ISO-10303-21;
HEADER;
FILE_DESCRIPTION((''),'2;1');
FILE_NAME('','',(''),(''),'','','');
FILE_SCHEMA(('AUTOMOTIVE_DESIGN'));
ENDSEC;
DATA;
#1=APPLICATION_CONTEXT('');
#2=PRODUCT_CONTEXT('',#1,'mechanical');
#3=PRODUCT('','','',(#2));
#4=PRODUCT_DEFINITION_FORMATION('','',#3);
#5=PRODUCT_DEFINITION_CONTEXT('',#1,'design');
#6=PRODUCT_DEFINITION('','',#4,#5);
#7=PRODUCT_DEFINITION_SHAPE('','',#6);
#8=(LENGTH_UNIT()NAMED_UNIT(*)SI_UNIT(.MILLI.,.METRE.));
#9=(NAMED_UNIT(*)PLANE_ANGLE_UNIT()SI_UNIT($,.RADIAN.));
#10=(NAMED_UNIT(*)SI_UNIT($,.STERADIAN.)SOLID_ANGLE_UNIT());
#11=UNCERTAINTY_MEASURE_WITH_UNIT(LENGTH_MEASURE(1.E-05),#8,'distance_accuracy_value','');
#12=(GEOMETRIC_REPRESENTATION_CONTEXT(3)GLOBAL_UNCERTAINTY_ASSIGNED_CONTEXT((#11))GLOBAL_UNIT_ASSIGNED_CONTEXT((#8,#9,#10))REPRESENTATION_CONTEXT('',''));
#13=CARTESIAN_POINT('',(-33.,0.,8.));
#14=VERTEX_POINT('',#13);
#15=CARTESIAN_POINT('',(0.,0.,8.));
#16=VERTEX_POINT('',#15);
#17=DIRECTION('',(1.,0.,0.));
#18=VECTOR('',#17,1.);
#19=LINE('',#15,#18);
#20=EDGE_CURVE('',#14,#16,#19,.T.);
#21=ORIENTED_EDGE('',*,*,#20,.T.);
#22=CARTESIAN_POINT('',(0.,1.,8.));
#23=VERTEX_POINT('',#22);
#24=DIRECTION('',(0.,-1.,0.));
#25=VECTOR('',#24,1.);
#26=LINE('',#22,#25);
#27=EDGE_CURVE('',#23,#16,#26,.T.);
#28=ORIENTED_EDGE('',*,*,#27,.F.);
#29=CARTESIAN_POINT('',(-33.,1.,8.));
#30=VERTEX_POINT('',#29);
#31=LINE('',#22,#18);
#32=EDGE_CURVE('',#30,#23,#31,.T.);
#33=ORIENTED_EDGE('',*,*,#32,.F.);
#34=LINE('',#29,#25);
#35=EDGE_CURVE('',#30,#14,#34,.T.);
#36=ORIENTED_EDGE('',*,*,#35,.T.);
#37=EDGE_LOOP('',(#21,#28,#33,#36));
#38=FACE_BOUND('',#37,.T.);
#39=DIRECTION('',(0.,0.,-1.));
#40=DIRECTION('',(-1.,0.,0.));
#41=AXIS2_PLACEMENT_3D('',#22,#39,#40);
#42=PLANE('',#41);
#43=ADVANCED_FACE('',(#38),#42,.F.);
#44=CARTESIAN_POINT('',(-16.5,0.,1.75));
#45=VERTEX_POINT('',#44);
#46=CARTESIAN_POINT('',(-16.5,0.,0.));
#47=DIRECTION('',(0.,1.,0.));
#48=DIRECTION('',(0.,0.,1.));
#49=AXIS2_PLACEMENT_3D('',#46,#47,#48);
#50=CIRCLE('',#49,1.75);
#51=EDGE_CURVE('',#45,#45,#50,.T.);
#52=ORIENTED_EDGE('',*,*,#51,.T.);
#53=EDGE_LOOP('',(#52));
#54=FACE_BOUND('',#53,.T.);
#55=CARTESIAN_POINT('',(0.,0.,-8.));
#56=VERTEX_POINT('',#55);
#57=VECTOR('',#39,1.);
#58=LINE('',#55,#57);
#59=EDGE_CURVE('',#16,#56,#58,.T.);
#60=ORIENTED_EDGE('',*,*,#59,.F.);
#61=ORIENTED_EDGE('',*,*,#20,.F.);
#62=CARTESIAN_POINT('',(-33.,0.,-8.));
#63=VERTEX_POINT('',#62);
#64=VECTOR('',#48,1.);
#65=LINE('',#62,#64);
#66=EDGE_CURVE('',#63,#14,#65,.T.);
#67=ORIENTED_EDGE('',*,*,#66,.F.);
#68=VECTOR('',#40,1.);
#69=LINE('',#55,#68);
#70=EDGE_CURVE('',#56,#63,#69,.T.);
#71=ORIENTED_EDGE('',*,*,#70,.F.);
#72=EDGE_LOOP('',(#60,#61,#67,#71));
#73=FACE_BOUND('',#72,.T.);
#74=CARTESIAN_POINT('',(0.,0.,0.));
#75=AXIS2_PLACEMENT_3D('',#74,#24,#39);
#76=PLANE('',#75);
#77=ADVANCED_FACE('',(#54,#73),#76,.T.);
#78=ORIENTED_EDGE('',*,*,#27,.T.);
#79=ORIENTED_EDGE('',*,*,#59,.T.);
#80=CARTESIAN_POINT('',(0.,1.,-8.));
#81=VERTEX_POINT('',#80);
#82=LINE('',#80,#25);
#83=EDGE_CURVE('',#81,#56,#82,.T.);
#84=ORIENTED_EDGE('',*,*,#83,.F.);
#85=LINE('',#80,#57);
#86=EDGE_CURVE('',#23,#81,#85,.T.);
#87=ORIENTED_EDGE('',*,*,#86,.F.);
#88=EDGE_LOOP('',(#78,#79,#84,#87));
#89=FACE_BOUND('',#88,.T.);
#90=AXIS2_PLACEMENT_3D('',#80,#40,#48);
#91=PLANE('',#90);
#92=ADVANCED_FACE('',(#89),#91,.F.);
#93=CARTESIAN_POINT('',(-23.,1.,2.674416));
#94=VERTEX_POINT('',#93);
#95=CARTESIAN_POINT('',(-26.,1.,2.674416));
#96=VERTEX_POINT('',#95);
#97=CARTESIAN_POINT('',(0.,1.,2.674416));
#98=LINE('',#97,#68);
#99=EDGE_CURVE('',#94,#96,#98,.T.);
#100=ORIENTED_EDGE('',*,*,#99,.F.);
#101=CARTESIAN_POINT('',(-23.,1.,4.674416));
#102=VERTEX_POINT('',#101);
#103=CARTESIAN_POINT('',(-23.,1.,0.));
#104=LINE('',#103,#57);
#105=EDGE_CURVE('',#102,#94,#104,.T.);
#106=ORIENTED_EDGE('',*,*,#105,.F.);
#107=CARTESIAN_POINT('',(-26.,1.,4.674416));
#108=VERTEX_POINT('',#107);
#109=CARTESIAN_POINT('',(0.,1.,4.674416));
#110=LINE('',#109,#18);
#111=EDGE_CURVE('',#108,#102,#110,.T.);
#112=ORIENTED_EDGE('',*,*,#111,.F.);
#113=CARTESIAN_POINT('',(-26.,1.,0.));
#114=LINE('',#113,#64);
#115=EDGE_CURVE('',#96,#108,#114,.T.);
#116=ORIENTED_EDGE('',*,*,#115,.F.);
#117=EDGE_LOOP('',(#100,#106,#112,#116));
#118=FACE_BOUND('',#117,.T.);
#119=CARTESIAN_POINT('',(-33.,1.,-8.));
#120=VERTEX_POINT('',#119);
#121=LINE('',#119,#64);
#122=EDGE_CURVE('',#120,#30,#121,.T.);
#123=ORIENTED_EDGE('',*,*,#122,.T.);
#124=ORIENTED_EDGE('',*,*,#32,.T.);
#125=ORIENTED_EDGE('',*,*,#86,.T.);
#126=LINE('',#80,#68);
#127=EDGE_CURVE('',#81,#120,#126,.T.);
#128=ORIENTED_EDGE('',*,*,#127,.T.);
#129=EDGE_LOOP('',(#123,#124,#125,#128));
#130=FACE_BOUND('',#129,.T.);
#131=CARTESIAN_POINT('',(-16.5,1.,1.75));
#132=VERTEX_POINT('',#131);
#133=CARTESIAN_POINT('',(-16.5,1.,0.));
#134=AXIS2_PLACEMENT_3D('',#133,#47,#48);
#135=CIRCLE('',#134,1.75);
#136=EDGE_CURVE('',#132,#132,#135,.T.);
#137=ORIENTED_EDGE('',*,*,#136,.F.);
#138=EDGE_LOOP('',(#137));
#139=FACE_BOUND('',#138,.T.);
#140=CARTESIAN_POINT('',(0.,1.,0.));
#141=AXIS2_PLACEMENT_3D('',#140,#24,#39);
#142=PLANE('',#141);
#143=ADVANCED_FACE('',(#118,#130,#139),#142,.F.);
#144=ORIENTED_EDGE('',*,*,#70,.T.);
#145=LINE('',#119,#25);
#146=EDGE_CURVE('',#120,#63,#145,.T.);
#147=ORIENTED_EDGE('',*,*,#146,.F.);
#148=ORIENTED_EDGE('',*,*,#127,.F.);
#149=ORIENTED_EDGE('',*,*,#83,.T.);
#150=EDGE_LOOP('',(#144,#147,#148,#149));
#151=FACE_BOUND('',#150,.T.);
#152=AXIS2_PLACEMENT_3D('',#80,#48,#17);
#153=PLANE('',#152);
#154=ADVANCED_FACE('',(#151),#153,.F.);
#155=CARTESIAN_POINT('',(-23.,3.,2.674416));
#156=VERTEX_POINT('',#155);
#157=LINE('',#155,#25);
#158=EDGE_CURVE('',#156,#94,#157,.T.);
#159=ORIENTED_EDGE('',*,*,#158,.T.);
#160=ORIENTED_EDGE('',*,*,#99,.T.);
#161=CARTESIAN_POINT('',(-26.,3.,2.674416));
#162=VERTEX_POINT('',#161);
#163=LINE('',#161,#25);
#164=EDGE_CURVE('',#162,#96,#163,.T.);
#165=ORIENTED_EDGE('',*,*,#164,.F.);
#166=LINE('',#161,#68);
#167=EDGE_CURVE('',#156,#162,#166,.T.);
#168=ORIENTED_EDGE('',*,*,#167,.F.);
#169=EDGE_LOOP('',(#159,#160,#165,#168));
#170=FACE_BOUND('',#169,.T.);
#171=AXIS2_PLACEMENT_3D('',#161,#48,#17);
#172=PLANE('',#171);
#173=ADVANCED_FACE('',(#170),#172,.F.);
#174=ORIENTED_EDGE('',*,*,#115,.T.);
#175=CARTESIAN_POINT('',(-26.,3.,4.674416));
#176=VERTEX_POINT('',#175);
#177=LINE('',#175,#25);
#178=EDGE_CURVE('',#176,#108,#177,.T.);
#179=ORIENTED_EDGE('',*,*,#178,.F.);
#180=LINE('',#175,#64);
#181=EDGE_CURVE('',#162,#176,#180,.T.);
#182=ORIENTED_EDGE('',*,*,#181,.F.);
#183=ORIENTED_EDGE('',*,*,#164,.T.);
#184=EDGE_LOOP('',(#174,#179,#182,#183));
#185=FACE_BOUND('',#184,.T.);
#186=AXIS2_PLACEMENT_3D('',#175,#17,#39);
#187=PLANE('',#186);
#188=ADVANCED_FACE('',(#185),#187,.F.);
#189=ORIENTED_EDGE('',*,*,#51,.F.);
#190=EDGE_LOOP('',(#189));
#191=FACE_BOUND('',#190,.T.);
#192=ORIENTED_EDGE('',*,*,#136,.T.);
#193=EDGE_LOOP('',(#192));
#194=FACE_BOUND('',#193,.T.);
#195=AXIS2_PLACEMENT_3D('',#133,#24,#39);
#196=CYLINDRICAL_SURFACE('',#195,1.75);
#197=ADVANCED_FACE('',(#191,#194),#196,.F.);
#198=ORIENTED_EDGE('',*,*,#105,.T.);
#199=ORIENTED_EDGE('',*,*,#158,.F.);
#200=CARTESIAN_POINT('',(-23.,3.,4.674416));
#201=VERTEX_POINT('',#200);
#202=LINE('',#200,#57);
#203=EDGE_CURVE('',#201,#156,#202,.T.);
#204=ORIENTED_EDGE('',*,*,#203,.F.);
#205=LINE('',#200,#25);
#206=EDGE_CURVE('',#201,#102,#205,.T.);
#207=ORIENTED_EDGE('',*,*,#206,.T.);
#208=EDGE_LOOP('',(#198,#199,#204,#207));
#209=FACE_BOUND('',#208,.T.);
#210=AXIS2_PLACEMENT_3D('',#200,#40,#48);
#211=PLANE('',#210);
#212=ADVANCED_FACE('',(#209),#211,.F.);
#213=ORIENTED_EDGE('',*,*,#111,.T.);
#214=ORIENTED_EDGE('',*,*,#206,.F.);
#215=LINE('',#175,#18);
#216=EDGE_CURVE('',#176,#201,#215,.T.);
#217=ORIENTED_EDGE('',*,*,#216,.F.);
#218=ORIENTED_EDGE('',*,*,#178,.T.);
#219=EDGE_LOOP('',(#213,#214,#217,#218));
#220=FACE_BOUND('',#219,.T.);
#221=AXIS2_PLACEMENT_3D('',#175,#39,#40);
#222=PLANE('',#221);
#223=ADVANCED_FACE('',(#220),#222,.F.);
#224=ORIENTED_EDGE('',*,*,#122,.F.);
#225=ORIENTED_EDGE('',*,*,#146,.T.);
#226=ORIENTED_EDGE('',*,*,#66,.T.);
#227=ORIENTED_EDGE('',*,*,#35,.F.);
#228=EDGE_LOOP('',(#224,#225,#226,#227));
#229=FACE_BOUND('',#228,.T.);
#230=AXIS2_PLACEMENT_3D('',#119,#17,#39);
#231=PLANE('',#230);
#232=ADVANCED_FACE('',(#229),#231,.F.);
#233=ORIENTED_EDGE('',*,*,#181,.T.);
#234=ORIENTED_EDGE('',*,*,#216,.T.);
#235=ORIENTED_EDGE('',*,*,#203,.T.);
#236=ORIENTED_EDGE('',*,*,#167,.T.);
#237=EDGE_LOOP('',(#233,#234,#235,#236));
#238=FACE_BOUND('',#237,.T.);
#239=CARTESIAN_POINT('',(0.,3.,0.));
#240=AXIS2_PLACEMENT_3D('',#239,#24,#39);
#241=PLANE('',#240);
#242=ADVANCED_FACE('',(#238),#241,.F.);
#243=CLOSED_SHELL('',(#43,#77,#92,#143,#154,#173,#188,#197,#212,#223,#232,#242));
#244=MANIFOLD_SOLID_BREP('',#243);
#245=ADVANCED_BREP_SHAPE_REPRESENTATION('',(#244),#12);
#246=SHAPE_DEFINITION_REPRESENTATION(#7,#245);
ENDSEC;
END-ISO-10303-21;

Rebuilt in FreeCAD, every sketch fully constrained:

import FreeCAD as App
import Part
import Sketcher

V = App.Vector
Q = App.Units.Quantity


def add_polygon(sketch, points):
    """Adds a closed chain of lines whose ends are joined by coincident constraints."""
    first, n = sketch.GeometryCount, len(points)
    for a, b in zip(points, points[1:] + points[:1]):
        sketch.addGeometry(Part.LineSegment(App.Vector(*a, 0), App.Vector(*b, 0)), False)
    for i in range(n):
        sketch.addConstraint(Sketcher.Constraint("Coincident", first + i, 2, first + (i + 1) % n, 1))

doc = App.newDocument("Part")
body = doc.addObject("PartDesign::Body", "Body")

# Sketch on XZ plane
sketch1 = body.newObject("Sketcher::SketchObject", "Sketch")
sketch1.AttachmentSupport = (doc.getObject("XZ_Plane"), [""])
sketch1.MapMode = "FlatFace"
add_polygon(sketch1, [(-33, -8), (-33, 8), (0, 8), (0, -8)])  # lines 0-3
sketch1.addGeometry(Part.Circle(V(-16.5, 0, 0), V(0, 0, 1), 1.8), False)  # 4
sketch1.addConstraint(Sketcher.Constraint("Vertical", 0))
sketch1.addConstraint(Sketcher.Constraint("Horizontal", 1))
sketch1.addConstraint(Sketcher.Constraint("Vertical", 2))
sketch1.addConstraint(Sketcher.Constraint("Horizontal", 3))
sketch1.addConstraint(Sketcher.Constraint("Symmetric", 1, 2, 2, 2, -1, 1))
sketch1.addConstraint(Sketcher.Constraint("PointOnObject", 4, 3, -1))
sketch1.addConstraint(Sketcher.Constraint("Diameter", 4, Q("3.5 mm")))
sketch1.addConstraint(Sketcher.Constraint("DistanceX", 1, 1, 1, 2, Q("33 mm")))
sketch1.addConstraint(Sketcher.Constraint("DistanceY", 0, 1, 0, 2, Q("16 mm")))
sketch1.addConstraint(Sketcher.Constraint("DistanceX", 4, 3, -1, 1, Q("16.5 mm")))
pad1 = body.newObject("PartDesign::Pad", "Pad")
pad1.Profile = sketch1
pad1.Length = 1
pad1.Reversed = True

# Sketch on XZ plane
sketch2 = body.newObject("Sketcher::SketchObject", "Sketch001")
sketch2.AttachmentSupport = (doc.getObject("XZ_Plane"), [""])
sketch2.MapMode = "FlatFace"
add_polygon(sketch2, [(-26, 2.7), (-26, 4.7), (-23, 4.7), (-23, 2.7)])  # lines 0-3
sketch2.addConstraint(Sketcher.Constraint("Vertical", 0))
sketch2.addConstraint(Sketcher.Constraint("Horizontal", 1))
sketch2.addConstraint(Sketcher.Constraint("Vertical", 2))
sketch2.addConstraint(Sketcher.Constraint("Horizontal", 3))
sketch2.addConstraint(Sketcher.Constraint("DistanceX", 1, 1, 1, 2, Q("3 mm")))
sketch2.addConstraint(Sketcher.Constraint("DistanceY", 0, 1, 0, 2, Q("2 mm")))
sketch2.addConstraint(Sketcher.Constraint("DistanceX", 0, 2, -1, 1, Q("26 mm")))
sketch2.addConstraint(Sketcher.Constraint("DistanceY", -1, 1, 0, 2, Q("4.674416 mm")))
pad2 = body.newObject("PartDesign::Pad", "Pad001")
pad2.Profile = sketch2
pad2.Length = 3
pad2.Reversed = True

doc.recompute()
